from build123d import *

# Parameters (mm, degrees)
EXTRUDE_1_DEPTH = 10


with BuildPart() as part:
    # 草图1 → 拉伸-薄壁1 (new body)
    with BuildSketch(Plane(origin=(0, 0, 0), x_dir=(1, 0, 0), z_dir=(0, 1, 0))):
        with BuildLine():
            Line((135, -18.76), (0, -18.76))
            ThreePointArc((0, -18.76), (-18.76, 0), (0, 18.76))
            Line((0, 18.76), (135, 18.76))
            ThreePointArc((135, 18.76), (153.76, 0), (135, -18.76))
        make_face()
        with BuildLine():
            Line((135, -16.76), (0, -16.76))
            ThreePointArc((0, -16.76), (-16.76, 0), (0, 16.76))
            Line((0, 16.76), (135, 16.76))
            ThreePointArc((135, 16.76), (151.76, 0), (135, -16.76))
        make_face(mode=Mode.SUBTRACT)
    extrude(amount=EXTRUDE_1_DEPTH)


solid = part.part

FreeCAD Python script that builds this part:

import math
import FreeCAD as App
import Part
import Sketcher
from FreeCAD import Vector
Q = App.Units.Quantity

doc = App.newDocument("Part")
params = doc.addObject("Spreadsheet::Sheet", "Params")
for row, (alias, value) in enumerate([
    ("sketch1_width", "135 mm"),
    ("sketch1_radius", "18.76 mm"),
    ("sketch1_radius2", "16.76 mm"),
    ("pad1_length", "10 mm"),
], start=1):
    params.set(f"A{row}", alias)
    params.set(f"B{row}", "=" + value)
    params.setAlias(f"B{row}", alias)

body = doc.addObject("PartDesign::Body", "Body")

# Sketch on XZ plane
sketch1 = doc.addObject("Sketcher::SketchObject", "Sketch")
body.addObject(sketch1)
sketch1.AttachmentSupport = (doc.XZ_Plane, [""])
sketch1.MapMode = "FlatFace"
sketch1.addGeometry([
    Part.LineSegment(Vector(0, 18.76, 0), Vector(135, 18.76, 0)),  # 0
    Part.ArcOfCircle(Part.Circle(Vector(135, 0, 0), Vector(0, 0, 1), 18.76), math.radians(-90), math.radians(90)),  # 1
    Part.LineSegment(Vector(135, -18.76, 0), Vector(0, -18.76, 0)),  # 2
    Part.ArcOfCircle(Part.Circle(Vector(0, 0, 0), Vector(0, 0, 1), 18.76), math.radians(90), math.radians(270)),  # 3
    Part.LineSegment(Vector(135, 16.76, 0), Vector(0, 16.76, 0)),  # 4
    Part.ArcOfCircle(Part.Circle(Vector(0, 0, 0), Vector(0, 0, 1), 16.76), math.radians(90), math.radians(270)),  # 5
    Part.LineSegment(Vector(0, -16.76, 0), Vector(135, -16.76, 0)),  # 6
    Part.ArcOfCircle(Part.Circle(Vector(135, 0, 0), Vector(0, 0, 1), 16.76), math.radians(-90), math.radians(90)),  # 7
], False)
sketch1.addConstraint([
    Sketcher.Constraint("Tangent", 0, 2, 1, 2),
    Sketcher.Constraint("Tangent", 1, 1, 2, 1),
    Sketcher.Constraint("Tangent", 2, 2, 3, 2),
    Sketcher.Constraint("Tangent", 3, 1, 0, 1),
    Sketcher.Constraint("Tangent", 4, 2, 5, 1),
    Sketcher.Constraint("Tangent", 5, 2, 6, 1),
    Sketcher.Constraint("Tangent", 6, 2, 7, 1),
    Sketcher.Constraint("Tangent", 7, 2, 4, 1),
    Sketcher.Constraint("Horizontal", 0),
    Sketcher.Constraint("Horizontal", 2),
    Sketcher.Constraint("Horizontal", 4),
    Sketcher.Constraint("Horizontal", 6),
    Sketcher.Constraint("Coincident", 3, 3, -1, 1),
    Sketcher.Constraint("Coincident", 5, 3, -1, 1),
    Sketcher.Constraint("Vertical", 7, 3, 0, 2),
    Sketcher.Constraint("DistanceX", 0, 1, 0, 2, Q("135 mm")),
    Sketcher.Constraint("Radius", 1, Q("18.76 mm")),
    Sketcher.Constraint("Radius", 5, Q("16.76 mm")),
])
sketch1.setExpression("Constraints[15]", "Params.sketch1_width")
sketch1.setExpression("Constraints[16]", "Params.sketch1_radius")
sketch1.setExpression("Constraints[17]", "Params.sketch1_radius2")
pad1 = doc.addObject("PartDesign::Pad", "Pad")
body.addObject(pad1)
pad1.Profile = sketch1
pad1.setExpression("Length", "Params.pad1_length")
pad1.Reversed = True

doc.recompute()
